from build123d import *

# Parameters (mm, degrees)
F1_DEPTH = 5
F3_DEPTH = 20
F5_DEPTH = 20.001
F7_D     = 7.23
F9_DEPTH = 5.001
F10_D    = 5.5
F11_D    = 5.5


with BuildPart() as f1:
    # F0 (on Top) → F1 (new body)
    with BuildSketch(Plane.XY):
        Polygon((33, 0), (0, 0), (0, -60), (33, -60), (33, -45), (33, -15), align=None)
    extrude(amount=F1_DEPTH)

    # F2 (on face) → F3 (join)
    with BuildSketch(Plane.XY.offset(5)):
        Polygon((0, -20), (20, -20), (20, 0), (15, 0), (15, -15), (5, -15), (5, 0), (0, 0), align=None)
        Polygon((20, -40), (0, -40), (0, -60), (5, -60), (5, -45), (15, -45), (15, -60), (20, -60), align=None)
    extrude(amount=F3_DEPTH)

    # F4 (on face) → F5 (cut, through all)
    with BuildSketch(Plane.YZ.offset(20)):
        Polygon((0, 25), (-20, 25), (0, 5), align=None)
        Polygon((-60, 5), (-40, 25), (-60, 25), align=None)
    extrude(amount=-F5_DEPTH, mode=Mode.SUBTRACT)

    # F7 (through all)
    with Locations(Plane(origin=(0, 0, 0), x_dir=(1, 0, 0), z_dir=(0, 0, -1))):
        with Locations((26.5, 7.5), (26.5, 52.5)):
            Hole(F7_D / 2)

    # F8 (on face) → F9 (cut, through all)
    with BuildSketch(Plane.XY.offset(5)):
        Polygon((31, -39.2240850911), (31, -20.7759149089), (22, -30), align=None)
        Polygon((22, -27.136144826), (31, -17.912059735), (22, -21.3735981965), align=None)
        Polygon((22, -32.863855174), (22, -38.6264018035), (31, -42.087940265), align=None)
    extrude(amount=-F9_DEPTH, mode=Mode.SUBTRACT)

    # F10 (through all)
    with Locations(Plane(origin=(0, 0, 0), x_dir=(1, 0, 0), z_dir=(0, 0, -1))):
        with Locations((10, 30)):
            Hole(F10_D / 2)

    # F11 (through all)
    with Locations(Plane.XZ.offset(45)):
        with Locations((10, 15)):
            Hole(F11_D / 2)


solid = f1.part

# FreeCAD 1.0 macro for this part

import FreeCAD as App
import Part
import Sketcher
from FreeCAD import Vector

doc = App.newDocument("Part")
body = doc.addObject("PartDesign::Body", "Body")

# Sketch on XY plane
sketch1 = body.newObject("Sketcher::SketchObject", "Sketch")
sketch1.AttachmentSupport = (doc.getObject("XY_Plane"), [""])
sketch1.MapMode = "FlatFace"
sketch1.addGeometry([
    Part.LineSegment(Vector(33, 0, 0), Vector(0, 0, 0)),
    Part.LineSegment(Vector(0, 0, 0), Vector(0, -60, 0)),
    Part.LineSegment(Vector(0, -60, 0), Vector(33, -60, 0)),
    Part.LineSegment(Vector(33, -60, 0), Vector(33, 0, 0)),
], False)
sketch1.addConstraint([
    Sketcher.Constraint("Coincident", 0, 2, 1, 1),
    Sketcher.Constraint("Coincident", 1, 2, 2, 1),
    Sketcher.Constraint("Coincident", 2, 2, 3, 1),
    Sketcher.Constraint("Coincident", 3, 2, 0, 1),
    Sketcher.Constraint("Horizontal", 0),
    Sketcher.Constraint("Vertical", 1),
    Sketcher.Constraint("Horizontal", 2),
    Sketcher.Constraint("Vertical", 3),
    Sketcher.Constraint("Coincident", 0, 2, -1, 1),
    Sketcher.Constraint("DistanceX", 0, 2, 0, 1, 33.0),
    Sketcher.Constraint("DistanceY", 1, 2, 1, 1, 60.0),
])
pad1 = body.newObject("PartDesign::Pad", "Pad")
pad1.Profile = sketch1
pad1.Length = 5

# Sketch on XY plane
sketch2 = body.newObject("Sketcher::SketchObject", "Sketch001")
sketch2.AttachmentSupport = (doc.getObject("XY_Plane"), [""])
sketch2.MapMode = "FlatFace"
sketch2.AttachmentOffset = App.Placement(Vector(0, 0, 5), App.Rotation())
sketch2.addGeometry([
    Part.LineSegment(Vector(0, -20, 0), Vector(20, -20, 0)),  # 0
    Part.LineSegment(Vector(20, -20, 0), Vector(20, 0, 0)),  # 1
    Part.LineSegment(Vector(20, 0, 0), Vector(15, 0, 0)),  # 2
    Part.LineSegment(Vector(15, 0, 0), Vector(15, -15, 0)),  # 3
    Part.LineSegment(Vector(15, -15, 0), Vector(5, -15, 0)),  # 4
    Part.LineSegment(Vector(5, -15, 0), Vector(5, 0, 0)),  # 5
    Part.LineSegment(Vector(5, 0, 0), Vector(0, 0, 0)),  # 6
    Part.LineSegment(Vector(0, 0, 0), Vector(0, -20, 0)),  # 7
    Part.LineSegment(Vector(20, -40, 0), Vector(0, -40, 0)),  # 8
    Part.LineSegment(Vector(0, -40, 0), Vector(0, -60, 0)),  # 9
    Part.LineSegment(Vector(0, -60, 0), Vector(5, -60, 0)),  # 10
    Part.LineSegment(Vector(5, -60, 0), Vector(5, -45, 0)),  # 11
    Part.LineSegment(Vector(5, -45, 0), Vector(15, -45, 0)),  # 12
    Part.LineSegment(Vector(15, -45, 0), Vector(15, -60, 0)),  # 13
    Part.LineSegment(Vector(15, -60, 0), Vector(20, -60, 0)),  # 14
    Part.LineSegment(Vector(20, -60, 0), Vector(20, -40, 0)),  # 15
], False)
sketch2.addConstraint([
    Sketcher.Constraint("Coincident", 0, 2, 1, 1),
    Sketcher.Constraint("Coincident", 1, 2, 2, 1),
    Sketcher.Constraint("Coincident", 2, 2, 3, 1),
    Sketcher.Constraint("Coincident", 3, 2, 4, 1),
    Sketcher.Constraint("Coincident", 4, 2, 5, 1),
    Sketcher.Constraint("Coincident", 5, 2, 6, 1),
    Sketcher.Constraint("Coincident", 6, 2, 7, 1),
    Sketcher.Constraint("Coincident", 7, 2, 0, 1),
    Sketcher.Constraint("Coincident", 8, 2, 9, 1),
    Sketcher.Constraint("Coincident", 9, 2, 10, 1),
    Sketcher.Constraint("Coincident", 10, 2, 11, 1),
    Sketcher.Constraint("Coincident", 11, 2, 12, 1),
    Sketcher.Constraint("Coincident", 12, 2, 13, 1),
    Sketcher.Constraint("Coincident", 13, 2, 14, 1),
    Sketcher.Constraint("Coincident", 14, 2, 15, 1),
    Sketcher.Constraint("Coincident", 15, 2, 8, 1),
    Sketcher.Constraint("Horizontal", 0),
    Sketcher.Constraint("Vertical", 1),
    Sketcher.Constraint("Horizontal", 2),
    Sketcher.Constraint("Vertical", 3),
    Sketcher.Constraint("Horizontal", 4),
    Sketcher.Constraint("Vertical", 5),
    Sketcher.Constraint("Horizontal", 6),
    Sketcher.Constraint("Vertical", 7),
    Sketcher.Constraint("Horizontal", 8),
    Sketcher.Constraint("Vertical", 9),
    Sketcher.Constraint("Horizontal", 10),
    Sketcher.Constraint("Vertical", 11),
    Sketcher.Constraint("Horizontal", 12),
    Sketcher.Constraint("Vertical", 13),
    Sketcher.Constraint("Horizontal", 14),
    Sketcher.Constraint("Vertical", 15),
    Sketcher.Constraint("Coincident", 6, 2, -1, 1),
    Sketcher.Constraint("PointOnObject", 1, 2, -1),
    Sketcher.Constraint("PointOnObject", 8, 2, -2),
    Sketcher.Constraint("Horizontal", 10, 2, 13, 2),
    Sketcher.Constraint("Vertical", 5, 2, 10, 2),
    Sketcher.Constraint("Vertical", 3, 2, 12, 2),
    Sketcher.Constraint("Vertical", 1, 2, 14, 2),
    Sketcher.Constraint("Equal", 2, 6),
    Sketcher.Constraint("Equal", 8, 1),
    Sketcher.Constraint("Equal", 7, 9),
    Sketcher.Constraint("Equal", 5, 11),
    Sketcher.Constraint("DistanceX", 0, 1, 0, 2, 20.0),
    Sketcher.Constraint("DistanceX", 2, 2, 2, 1, 5.0),
    Sketcher.Constraint("DistanceY", 3, 2, 3, 1, 15.0),
    Sketcher.Constraint("DistanceY", 8, 2, -1, 1, 40.0),
])
pad2 = body.newObject("PartDesign::Pad", "Pad001")
pad2.Profile = sketch2
pad2.Length = 20

# Sketch on YZ plane
sketch3 = body.newObject("Sketcher::SketchObject", "Sketch002")
sketch3.AttachmentSupport = (doc.getObject("YZ_Plane"), [""])
sketch3.MapMode = "FlatFace"
sketch3.AttachmentOffset = App.Placement(Vector(0, 0, 20), App.Rotation())
sketch3.addGeometry([
    Part.LineSegment(Vector(0, 25, 0), Vector(-20, 25, 0)),  # 0
    Part.LineSegment(Vector(-20, 25, 0), Vector(0, 5, 0)),  # 1
    Part.LineSegment(Vector(0, 5, 0), Vector(0, 25, 0)),  # 2
    Part.LineSegment(Vector(-60, 5, 0), Vector(-40, 25, 0)),  # 3
    Part.LineSegment(Vector(-40, 25, 0), Vector(-60, 25, 0)),  # 4
    Part.LineSegment(Vector(-60, 25, 0), Vector(-60, 5, 0)),  # 5
], False)
sketch3.addConstraint([
    Sketcher.Constraint("Coincident", 0, 2, 1, 1),
    Sketcher.Constraint("Coincident", 1, 2, 2, 1),
    Sketcher.Constraint("Coincident", 2, 2, 0, 1),
    Sketcher.Constraint("Coincident", 3, 2, 4, 1),
    Sketcher.Constraint("Coincident", 4, 2, 5, 1),
    Sketcher.Constraint("Coincident", 5, 2, 3, 1),
    Sketcher.Constraint("Horizontal", 0),
    Sketcher.Constraint("Vertical", 2),
    Sketcher.Constraint("Horizontal", 4),
    Sketcher.Constraint("Vertical", 5),
    Sketcher.Constraint("PointOnObject", 1, 2, -2),
    Sketcher.Constraint("Perpendicular", 1, 3),
    Sketcher.Constraint("Horizontal", 2, 2, 3, 2),
    Sketcher.Constraint("Horizontal", 1, 2, 5, 2),
    Sketcher.Constraint("Equal", 0, 4),
    Sketcher.Constraint("DistanceX", 0, 2, 0, 1, 20.0),
    Sketcher.Constraint("DistanceY", -1, 1, 0, 2, 25.0),
    Sketcher.Constraint("DistanceX", 3, 2, -1, 1, 40.0),
])
pocket1 = body.newObject("PartDesign::Pocket", "Pocket")
pocket1.Profile = sketch3
pocket1.Type = "ThroughAll"

# Sketch on XY plane
sketch4 = body.newObject("Sketcher::SketchObject", "Sketch003")
sketch4.AttachmentSupport = (doc.getObject("XY_Plane"), [""])
sketch4.MapMode = "FlatFace"
sketch4.addGeometry([
    Part.Circle(Vector(26.5, -7.5, 0), Vector(0, 0, 1), 3.6),
    Part.Circle(Vector(26.5, -52.5, 0), Vector(0, 0, 1), 3.6),
], False)
sketch4.addConstraint([
    Sketcher.Constraint("Equal", 0, 1),
    Sketcher.Constraint("Vertical", 0, 3, 1, 3),
    Sketcher.Constraint("Diameter", 0, 7.23),
    Sketcher.Constraint("DistanceY", 1, 3, 0, 3, 45.0),
    Sketcher.Constraint("DistanceX", -1, 1, 0, 3, 26.5),
    Sketcher.Constraint("DistanceY", 0, 3, -1, 1, 7.5),
])
doc.recompute()
hole = body.newObject("PartDesign::Hole", "Hole")
hole.Profile = sketch4
hole.ThreadType = "None"
hole.Diameter = 7.23
hole.DepthType = "ThroughAll"
hole.Reversed = True

# Sketch on XY plane
sketch5 = body.newObject("Sketcher::SketchObject", "Sketch004")
sketch5.AttachmentSupport = (doc.getObject("XY_Plane"), [""])
sketch5.MapMode = "FlatFace"
sketch5.AttachmentOffset = App.Placement(Vector(0, 0, 5), App.Rotation())
sketch5.addGeometry([
    Part.LineSegment(Vector(31, -39, 0), Vector(31, -21, 0)),  # 0
    Part.LineSegment(Vector(31, -21, 0), Vector(22, -30, 0)),  # 1
    Part.LineSegment(Vector(22, -30, 0), Vector(31, -39, 0)),  # 2
    Part.LineSegment(Vector(22, -27, 0), Vector(31, -18, 0)),  # 3
    Part.LineSegment(Vector(31, -18, 0), Vector(22, -21, 0)),  # 4
    Part.LineSegment(Vector(22, -21, 0), Vector(22, -27, 0)),  # 5
    Part.LineSegment(Vector(22, -33, 0), Vector(22, -39, 0)),  # 6
    Part.LineSegment(Vector(22, -39, 0), Vector(31, -42, 0)),  # 7
    Part.LineSegment(Vector(31, -42, 0), Vector(22, -33, 0)),  # 8
], False)
sketch5.addConstraint([
    Sketcher.Constraint("Coincident", 0, 2, 1, 1),
    Sketcher.Constraint("Coincident", 1, 2, 2, 1),
    Sketcher.Constraint("Coincident", 2, 2, 0, 1),
    Sketcher.Constraint("Coincident", 3, 2, 4, 1),
    Sketcher.Constraint("Coincident", 4, 2, 5, 1),
    Sketcher.Constraint("Coincident", 5, 2, 3, 1),
    Sketcher.Constraint("Coincident", 6, 2, 7, 1),
    Sketcher.Constraint("Coincident", 7, 2, 8, 1),
    Sketcher.Constraint("Coincident", 8, 2, 6, 1),
    Sketcher.Constraint("Vertical", 0),
    Sketcher.Constraint("Vertical", 5),
    Sketcher.Constraint("Vertical", 6),
    Sketcher.Constraint("Parallel", 1, 3),
    Sketcher.Constraint("Parallel", 2, 8),
    Sketcher.Constraint("Vertical", 2, 2, 3, 2),
    Sketcher.Constraint("Vertical", 1, 2, 4, 2),
    Sketcher.Constraint("Vertical", 5, 2, 6, 2),
    Sketcher.Constraint("Vertical", 3, 2, 7, 2),
    Sketcher.Constraint("Equal", 5, 6),
    Sketcher.Constraint("Equal", 1, 2),
    Sketcher.Constraint("DistanceX", -1, 1, 0, 2, 31.0),
    Sketcher.Constraint("DistanceX", -1, 1, 1, 2, 22.0),
    Sketcher.Constraint("DistanceY", 1, 2, -1, 1, 30.0),
    Sketcher.Constraint("DistanceY", 0, 1, 0, 2, 18.44817),
    Sketcher.Constraint("DistanceY", 4, 2, -1, 1, 21.373598),
    Sketcher.Constraint("DistanceY", 6, 2, -1, 1, 38.626402),
    Sketcher.Constraint("Distance", 4, 9.64273),
])
pocket2 = body.newObject("PartDesign::Pocket", "Pocket001")
pocket2.Profile = sketch5
pocket2.Type = "ThroughAll"

# Sketch on XY plane
sketch6 = body.newObject("Sketcher::SketchObject", "Sketch005")
sketch6.AttachmentSupport = (doc.getObject("XY_Plane"), [""])
sketch6.MapMode = "FlatFace"
sketch6.addGeometry(Part.Circle(Vector(10, -30, 0), Vector(0, 0, 1), 2.8), False)
sketch6.addConstraint([
    Sketcher.Constraint("Diameter", 0, 5.5),
    Sketcher.Constraint("DistanceX", -1, 1, 0, 3, 10.0),
    Sketcher.Constraint("DistanceY", 0, 3, -1, 1, 30.0),
])
doc.recompute()
hole2 = body.newObject("PartDesign::Hole", "Hole001")
hole2.Profile = sketch6
hole2.ThreadType = "None"
hole2.Diameter = 5.5
hole2.DepthType = "ThroughAll"
hole2.Reversed = True

# Sketch on XZ plane
sketch7 = body.newObject("Sketcher::SketchObject", "Sketch006")
sketch7.AttachmentSupport = (doc.getObject("XZ_Plane"), [""])
sketch7.MapMode = "FlatFace"
sketch7.AttachmentOffset = App.Placement(Vector(0, 0, 45), App.Rotation())
sketch7.addGeometry(Part.Circle(Vector(10, 15, 0), Vector(0, 0, 1), 2.8), False)
sketch7.addConstraint([
    Sketcher.Constraint("Diameter", 0, 5.5),
    Sketcher.Constraint("DistanceX", -1, 1, 0, 3, 10.0),
    Sketcher.Constraint("DistanceY", -1, 1, 0, 3, 15.0),
])
doc.recompute()
hole3 = body.newObject("PartDesign::Hole", "Hole002")
hole3.Profile = sketch7
hole3.ThreadType = "None"
hole3.Diameter = 5.5
hole3.DepthType = "ThroughAll"

doc.recompute()
